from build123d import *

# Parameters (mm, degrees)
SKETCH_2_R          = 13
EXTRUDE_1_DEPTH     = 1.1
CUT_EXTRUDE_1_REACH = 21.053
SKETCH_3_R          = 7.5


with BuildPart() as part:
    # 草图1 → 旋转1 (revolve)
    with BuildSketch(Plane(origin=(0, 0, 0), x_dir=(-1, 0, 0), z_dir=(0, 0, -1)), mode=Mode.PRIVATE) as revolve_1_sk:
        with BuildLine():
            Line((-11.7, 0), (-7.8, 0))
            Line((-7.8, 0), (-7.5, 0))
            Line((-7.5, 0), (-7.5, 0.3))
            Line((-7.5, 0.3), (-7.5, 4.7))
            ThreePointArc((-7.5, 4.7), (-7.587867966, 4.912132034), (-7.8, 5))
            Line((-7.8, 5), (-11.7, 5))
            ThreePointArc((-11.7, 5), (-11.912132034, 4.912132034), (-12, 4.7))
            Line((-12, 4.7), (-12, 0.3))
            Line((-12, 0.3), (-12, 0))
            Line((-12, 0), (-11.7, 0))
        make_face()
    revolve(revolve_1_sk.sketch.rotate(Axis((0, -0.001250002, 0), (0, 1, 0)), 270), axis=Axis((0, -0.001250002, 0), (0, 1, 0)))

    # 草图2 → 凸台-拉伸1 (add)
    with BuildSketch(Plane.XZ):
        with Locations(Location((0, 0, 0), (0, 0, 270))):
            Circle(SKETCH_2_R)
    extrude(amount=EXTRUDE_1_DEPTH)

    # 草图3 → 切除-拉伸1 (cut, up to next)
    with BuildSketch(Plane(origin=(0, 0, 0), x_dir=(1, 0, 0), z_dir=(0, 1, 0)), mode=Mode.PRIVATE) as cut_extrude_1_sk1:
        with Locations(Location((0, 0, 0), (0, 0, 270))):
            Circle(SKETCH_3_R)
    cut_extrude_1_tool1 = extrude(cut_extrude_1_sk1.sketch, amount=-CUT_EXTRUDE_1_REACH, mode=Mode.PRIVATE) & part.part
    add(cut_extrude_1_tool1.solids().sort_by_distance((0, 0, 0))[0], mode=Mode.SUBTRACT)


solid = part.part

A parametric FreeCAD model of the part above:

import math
import FreeCAD as App
import Part
import Sketcher

V = App.Vector
Q = App.Units.Quantity

doc = App.newDocument("Part")
body = doc.addObject("PartDesign::Body", "Body")

sketch1 = doc.addObject("Sketcher::SketchObject", "Sketch")
body.addObject(sketch1)
sketch1.AttachmentSupport = (doc.XY_Plane, [""])
sketch1.MapMode = "FlatFace"
sketch1.addGeometry([
    Part.LineSegment(V(7.5, 0, 0), V(7.5, 4.7, 0)),
    Part.ArcOfCircle(Part.Circle(V(7.8, 4.7, 0), V(0, 0, 1), 0.3), math.radians(90), math.radians(180)),
    Part.LineSegment(V(7.8, 5, 0), V(11.7, 5, 0)),
    Part.ArcOfCircle(Part.Circle(V(11.7, 4.7, 0), V(0, 0, 1), 0.3), math.radians(0), math.radians(90)),
    Part.LineSegment(V(12, 4.7, 0), V(12, 0, 0)),
    Part.LineSegment(V(12, 0, 0), V(7.5, 0, 0)),
], False)
sketch1.addConstraint([
    Sketcher.Constraint("Tangent", 0, 2, 1, 2),
    Sketcher.Constraint("Tangent", 1, 1, 2, 1),
    Sketcher.Constraint("Tangent", 2, 2, 3, 2),
    Sketcher.Constraint("Tangent", 3, 1, 4, 1),
    Sketcher.Constraint("Coincident", 4, 2, 5, 1),
    Sketcher.Constraint("Coincident", 5, 2, 0, 1),
    Sketcher.Constraint("Vertical", 0),
    Sketcher.Constraint("Horizontal", 2),
    Sketcher.Constraint("Vertical", 4),
    Sketcher.Constraint("Horizontal", 5),
    Sketcher.Constraint("Equal", 1, 3),
    Sketcher.Constraint("PointOnObject", 4, 2, -1),
    Sketcher.Constraint("Radius", 1, Q("0.3 mm")),
    Sketcher.Constraint("DistanceX", 2, 1, 2, 2, Q("3.9 mm")),
    Sketcher.Constraint("DistanceY", 0, 1, 0, 2, Q("4.7 mm")),
    Sketcher.Constraint("DistanceX", -1, 1, 3, 1, Q("12 mm")),
])
revolution = doc.addObject("PartDesign::Revolution", "Revolution")
body.addObject(revolution)
revolution.Profile = sketch1
revolution.ReferenceAxis = (sketch1, ["V_Axis"])
revolution.Angle = 360

sketch2 = doc.addObject("Sketcher::SketchObject", "Sketch001")
body.addObject(sketch2)
sketch2.AttachmentSupport = (doc.XZ_Plane, [""])
sketch2.MapMode = "FlatFace"
sketch2.addGeometry(Part.Circle(V(0, 0, 0), V(0, 0, 1), 13), False)
sketch2.addConstraint([
    Sketcher.Constraint("Coincident", 0, 3, -1, 1),
    Sketcher.Constraint("Diameter", 0, Q("26 mm")),
])
pad1 = doc.addObject("PartDesign::Pad", "Pad")
body.addObject(pad1)
pad1.Profile = sketch2
pad1.Length = 1.1

sketch3 = doc.addObject("Sketcher::SketchObject", "Sketch002")
body.addObject(sketch3)
sketch3.AttachmentSupport = (doc.XZ_Plane, [""])
sketch3.MapMode = "FlatFace"
sketch3.addGeometry(Part.Circle(V(0, 0, 0), V(0, 0, 1), 8), False)
sketch3.addConstraint([
    Sketcher.Constraint("Coincident", 0, 3, -1, 1),
    Sketcher.Constraint("Diameter", 0, Q("15 mm")),
])
pocket1 = doc.addObject("PartDesign::Pocket", "Pocket")
body.addObject(pocket1)
pocket1.Profile = sketch3
pocket1.Type = "UpToFirst"
pocket1.Reversed = True

doc.recompute()
